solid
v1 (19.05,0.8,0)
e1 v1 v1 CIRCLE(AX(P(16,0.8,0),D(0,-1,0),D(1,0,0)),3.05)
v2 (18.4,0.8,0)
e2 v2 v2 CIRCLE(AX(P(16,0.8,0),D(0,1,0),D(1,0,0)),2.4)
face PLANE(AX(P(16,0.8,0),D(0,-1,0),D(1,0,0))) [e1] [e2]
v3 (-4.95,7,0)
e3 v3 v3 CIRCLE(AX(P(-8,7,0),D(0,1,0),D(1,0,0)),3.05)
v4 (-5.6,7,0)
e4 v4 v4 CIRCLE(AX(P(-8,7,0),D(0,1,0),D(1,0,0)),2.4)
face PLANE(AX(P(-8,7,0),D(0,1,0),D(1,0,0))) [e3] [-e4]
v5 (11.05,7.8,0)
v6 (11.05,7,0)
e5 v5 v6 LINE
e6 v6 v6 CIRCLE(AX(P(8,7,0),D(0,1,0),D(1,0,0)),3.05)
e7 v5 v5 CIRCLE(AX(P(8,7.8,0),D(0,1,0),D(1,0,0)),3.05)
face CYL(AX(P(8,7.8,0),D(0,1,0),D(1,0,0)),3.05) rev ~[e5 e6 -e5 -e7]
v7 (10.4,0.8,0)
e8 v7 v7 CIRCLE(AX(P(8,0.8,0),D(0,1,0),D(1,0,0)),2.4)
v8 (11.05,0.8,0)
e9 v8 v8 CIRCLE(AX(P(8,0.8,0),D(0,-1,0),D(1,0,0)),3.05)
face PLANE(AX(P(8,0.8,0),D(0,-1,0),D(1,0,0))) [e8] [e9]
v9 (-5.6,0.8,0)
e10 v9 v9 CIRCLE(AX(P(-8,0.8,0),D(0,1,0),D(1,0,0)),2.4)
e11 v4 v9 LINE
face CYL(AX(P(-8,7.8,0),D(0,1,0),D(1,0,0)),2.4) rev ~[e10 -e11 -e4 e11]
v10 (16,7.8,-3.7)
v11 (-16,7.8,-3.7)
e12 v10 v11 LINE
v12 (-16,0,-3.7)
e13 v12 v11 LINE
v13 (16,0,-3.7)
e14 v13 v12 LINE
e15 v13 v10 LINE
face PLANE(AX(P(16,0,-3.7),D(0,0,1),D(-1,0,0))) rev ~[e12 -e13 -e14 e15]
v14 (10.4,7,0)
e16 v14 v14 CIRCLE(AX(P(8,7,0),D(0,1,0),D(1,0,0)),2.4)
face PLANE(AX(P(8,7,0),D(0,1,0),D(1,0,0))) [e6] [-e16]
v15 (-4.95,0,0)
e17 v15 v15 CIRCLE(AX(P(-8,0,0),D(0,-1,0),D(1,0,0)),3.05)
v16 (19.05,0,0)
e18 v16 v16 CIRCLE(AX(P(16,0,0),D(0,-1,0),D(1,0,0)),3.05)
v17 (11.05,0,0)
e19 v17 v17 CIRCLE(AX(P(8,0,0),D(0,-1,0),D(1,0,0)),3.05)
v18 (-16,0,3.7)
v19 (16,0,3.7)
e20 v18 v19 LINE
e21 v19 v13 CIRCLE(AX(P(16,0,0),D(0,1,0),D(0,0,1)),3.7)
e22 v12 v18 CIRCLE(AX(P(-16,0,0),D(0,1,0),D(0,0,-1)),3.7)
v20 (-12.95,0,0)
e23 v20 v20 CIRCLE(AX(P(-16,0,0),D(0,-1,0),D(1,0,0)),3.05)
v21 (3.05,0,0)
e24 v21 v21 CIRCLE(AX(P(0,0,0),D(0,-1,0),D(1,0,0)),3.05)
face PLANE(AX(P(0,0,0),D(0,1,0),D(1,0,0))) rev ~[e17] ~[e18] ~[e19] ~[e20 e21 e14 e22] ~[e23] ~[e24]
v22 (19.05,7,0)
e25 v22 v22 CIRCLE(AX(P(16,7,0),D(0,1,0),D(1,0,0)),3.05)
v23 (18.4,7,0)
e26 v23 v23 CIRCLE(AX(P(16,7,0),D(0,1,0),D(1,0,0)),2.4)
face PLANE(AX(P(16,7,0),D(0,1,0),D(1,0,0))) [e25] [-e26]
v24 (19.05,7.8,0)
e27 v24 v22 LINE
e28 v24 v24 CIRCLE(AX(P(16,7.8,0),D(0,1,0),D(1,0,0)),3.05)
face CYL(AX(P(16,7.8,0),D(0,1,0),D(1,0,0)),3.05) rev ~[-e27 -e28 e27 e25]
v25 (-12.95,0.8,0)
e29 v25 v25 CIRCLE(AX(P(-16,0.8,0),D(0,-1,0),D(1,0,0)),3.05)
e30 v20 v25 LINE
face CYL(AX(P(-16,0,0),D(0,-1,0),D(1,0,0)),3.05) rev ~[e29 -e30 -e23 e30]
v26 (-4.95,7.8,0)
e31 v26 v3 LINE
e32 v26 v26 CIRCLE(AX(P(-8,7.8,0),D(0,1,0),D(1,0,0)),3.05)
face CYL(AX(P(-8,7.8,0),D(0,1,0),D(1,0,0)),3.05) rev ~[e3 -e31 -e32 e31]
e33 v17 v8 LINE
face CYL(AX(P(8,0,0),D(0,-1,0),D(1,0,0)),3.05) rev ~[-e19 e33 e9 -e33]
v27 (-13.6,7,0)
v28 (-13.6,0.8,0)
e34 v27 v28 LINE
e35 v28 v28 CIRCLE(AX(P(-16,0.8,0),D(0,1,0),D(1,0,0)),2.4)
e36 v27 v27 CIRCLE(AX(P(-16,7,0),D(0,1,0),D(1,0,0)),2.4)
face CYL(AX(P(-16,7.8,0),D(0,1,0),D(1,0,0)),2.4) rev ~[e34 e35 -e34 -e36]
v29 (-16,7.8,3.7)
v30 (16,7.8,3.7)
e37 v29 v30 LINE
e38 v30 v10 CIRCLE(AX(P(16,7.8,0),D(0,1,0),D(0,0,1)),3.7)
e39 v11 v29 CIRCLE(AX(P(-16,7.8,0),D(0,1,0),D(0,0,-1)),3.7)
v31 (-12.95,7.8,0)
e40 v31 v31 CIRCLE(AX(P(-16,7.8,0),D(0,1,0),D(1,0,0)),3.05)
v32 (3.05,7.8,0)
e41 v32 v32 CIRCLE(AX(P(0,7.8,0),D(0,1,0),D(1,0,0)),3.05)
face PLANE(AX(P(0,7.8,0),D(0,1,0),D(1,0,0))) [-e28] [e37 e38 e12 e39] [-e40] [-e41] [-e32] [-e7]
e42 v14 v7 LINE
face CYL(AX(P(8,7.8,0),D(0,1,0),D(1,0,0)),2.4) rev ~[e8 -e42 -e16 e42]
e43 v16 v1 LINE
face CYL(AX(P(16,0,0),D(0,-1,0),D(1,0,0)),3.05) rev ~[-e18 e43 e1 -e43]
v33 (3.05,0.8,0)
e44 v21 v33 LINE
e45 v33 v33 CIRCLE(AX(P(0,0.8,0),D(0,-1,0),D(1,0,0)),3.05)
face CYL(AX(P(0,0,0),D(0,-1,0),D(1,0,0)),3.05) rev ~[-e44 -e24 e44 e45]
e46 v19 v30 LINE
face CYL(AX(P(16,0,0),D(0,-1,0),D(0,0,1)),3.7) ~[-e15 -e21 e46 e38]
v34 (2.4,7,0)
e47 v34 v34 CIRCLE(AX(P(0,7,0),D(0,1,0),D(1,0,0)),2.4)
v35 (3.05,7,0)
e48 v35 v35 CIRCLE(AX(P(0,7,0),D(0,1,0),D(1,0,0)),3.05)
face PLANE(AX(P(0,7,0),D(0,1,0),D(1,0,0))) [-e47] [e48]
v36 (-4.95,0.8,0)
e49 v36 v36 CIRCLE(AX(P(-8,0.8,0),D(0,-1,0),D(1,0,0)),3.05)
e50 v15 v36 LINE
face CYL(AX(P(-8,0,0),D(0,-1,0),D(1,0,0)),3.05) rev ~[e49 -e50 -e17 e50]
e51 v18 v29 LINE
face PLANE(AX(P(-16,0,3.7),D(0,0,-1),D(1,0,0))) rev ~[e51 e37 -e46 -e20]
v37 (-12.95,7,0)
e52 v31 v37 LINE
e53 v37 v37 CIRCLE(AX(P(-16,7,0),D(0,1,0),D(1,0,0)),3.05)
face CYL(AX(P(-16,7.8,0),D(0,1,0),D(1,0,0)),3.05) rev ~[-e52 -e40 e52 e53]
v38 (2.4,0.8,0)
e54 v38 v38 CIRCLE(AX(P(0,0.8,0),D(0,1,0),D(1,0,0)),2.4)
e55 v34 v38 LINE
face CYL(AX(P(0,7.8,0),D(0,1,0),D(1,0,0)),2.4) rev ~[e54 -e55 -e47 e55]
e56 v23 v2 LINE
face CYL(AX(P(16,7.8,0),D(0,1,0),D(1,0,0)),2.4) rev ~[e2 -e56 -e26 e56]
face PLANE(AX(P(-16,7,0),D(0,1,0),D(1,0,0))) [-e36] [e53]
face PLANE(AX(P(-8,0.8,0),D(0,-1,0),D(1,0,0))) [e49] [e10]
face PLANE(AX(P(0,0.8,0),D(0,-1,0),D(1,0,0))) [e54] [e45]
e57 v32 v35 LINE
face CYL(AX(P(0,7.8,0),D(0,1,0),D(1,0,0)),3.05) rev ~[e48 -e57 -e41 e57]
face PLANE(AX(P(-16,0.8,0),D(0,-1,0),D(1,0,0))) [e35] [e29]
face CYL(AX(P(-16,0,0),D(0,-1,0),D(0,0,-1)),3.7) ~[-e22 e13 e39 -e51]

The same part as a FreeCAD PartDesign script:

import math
import FreeCAD as App
import Part
import Sketcher
from FreeCAD import Vector
Q = App.Units.Quantity

doc = App.newDocument("Part")
body = doc.addObject("PartDesign::Body", "Body")

# Sketch on XZ plane
sketch1 = body.newObject("Sketcher::SketchObject", "Sketch")
sketch1.AttachmentSupport = (doc.getObject("XZ_Plane"), [""])
sketch1.MapMode = "FlatFace"
sketch1.addGeometry(Part.LineSegment(Vector(-16, 3.7, 0), Vector(16, 3.7, 0)), False)
sketch1.addGeometry(Part.ArcOfCircle(Part.Circle(Vector(16, 0, 0), Vector(0, 0, 1), 3.7), math.radians(-90), math.radians(90)), False)
sketch1.addGeometry(Part.LineSegment(Vector(16, -3.7, 0), Vector(-16, -3.7, 0)), False)
sketch1.addGeometry(Part.ArcOfCircle(Part.Circle(Vector(-16, 0, 0), Vector(0, 0, 1), 3.7), math.radians(90), math.radians(270)), False)
sketch1.addConstraint(Sketcher.Constraint("Tangent", 0, 2, 1, 2))
sketch1.addConstraint(Sketcher.Constraint("Tangent", 1, 1, 2, 1))
sketch1.addConstraint(Sketcher.Constraint("Tangent", 2, 2, 3, 2))
sketch1.addConstraint(Sketcher.Constraint("Tangent", 3, 1, 0, 1))
sketch1.addConstraint(Sketcher.Constraint("Horizontal", 0))
sketch1.addConstraint(Sketcher.Constraint("Horizontal", 2))
sketch1.addConstraint(Sketcher.Constraint("Symmetric", 1, 3, 3, 3, -1, 1))
sketch1.addConstraint(Sketcher.Constraint("Radius", 1, Q("3.7 mm")))
sketch1.addConstraint(Sketcher.Constraint("DistanceX", 0, 1, 0, 2, Q("32 mm")))
pad1 = body.newObject("PartDesign::Pad", "Pad")
pad1.Profile = sketch1
pad1.Length = 7.8
pad1.Reversed = True

# Sketch on XZ plane
sketch2 = body.newObject("Sketcher::SketchObject", "Sketch001")
sketch2.AttachmentSupport = (doc.getObject("XZ_Plane"), [""])
sketch2.MapMode = "FlatFace"
sketch2.AttachmentOffset = App.Placement(Vector(0, 0, -7.8), App.Rotation())
sketch2.addGeometry(Part.Circle(Vector(0, 0, 0), Vector(0, 0, 1), 2.4), False)
sketch2.addGeometry(Part.Circle(Vector(8, 0, 0), Vector(0, 0, 1), 2.4), False)
sketch2.addGeometry(Part.Circle(Vector(16, 0, 0), Vector(0, 0, 1), 2.4), False)
sketch2.addGeometry(Part.Circle(Vector(-16, 0, 0), Vector(0, 0, 1), 2.4), False)
sketch2.addGeometry(Part.Circle(Vector(-8, 0, 0), Vector(0, 0, 1), 2.4), False)
sketch2.addConstraint(Sketcher.Constraint("Coincident", 0, 3, -1, 1))
sketch2.addConstraint(Sketcher.Constraint("Equal", 0, 1))
sketch2.addConstraint(Sketcher.Constraint("Equal", 1, 2))
sketch2.addConstraint(Sketcher.Constraint("Equal", 2, 3))
sketch2.addConstraint(Sketcher.Constraint("Equal", 3, 4))
sketch2.addConstraint(Sketcher.Constraint("Symmetric", 2, 3, 3, 3, -1, 1))
sketch2.addConstraint(Sketcher.Constraint("Symmetric", 1, 3, 4, 3, -1, 1))
sketch2.addConstraint(Sketcher.Constraint("PointOnObject", 1, 3, -1))
sketch2.addConstraint(Sketcher.Constraint("PointOnObject", 2, 3, -1))
sketch2.addConstraint(Sketcher.Constraint("Diameter", 0, Q("4.8 mm")))
sketch2.addConstraint(Sketcher.Constraint("DistanceX", -1, 1, 1, 3, Q("8 mm")))
sketch2.addConstraint(Sketcher.Constraint("DistanceX", -1, 1, 2, 3, Q("16 mm")))
pocket1 = body.newObject("PartDesign::Pocket", "Pocket")
pocket1.Profile = sketch2
pocket1.Length = 7.8
pocket1.Reversed = True

# Sketch on XZ plane
sketch3 = body.newObject("Sketcher::SketchObject", "Sketch002")
sketch3.AttachmentSupport = (doc.getObject("XZ_Plane"), [""])
sketch3.MapMode = "FlatFace"
sketch3.AttachmentOffset = App.Placement(Vector(0, 0, -7.8), App.Rotation())
sketch3.addGeometry(Part.Circle(Vector(0, 0, 0), Vector(0, 0, 1), 3), False)
sketch3.addGeometry(Part.Circle(Vector(8, 0, 0), Vector(0, 0, 1), 3), False)
sketch3.addGeometry(Part.Circle(Vector(16, 0, 0), Vector(0, 0, 1), 3), False)
sketch3.addGeometry(Part.Circle(Vector(-16, 0, 0), Vector(0, 0, 1), 3), False)
sketch3.addGeometry(Part.Circle(Vector(-8, 0, 0), Vector(0, 0, 1), 3), False)
sketch3.addConstraint(Sketcher.Constraint("Coincident", 0, 3, -1, 1))
sketch3.addConstraint(Sketcher.Constraint("Equal", 0, 1))
sketch3.addConstraint(Sketcher.Constraint("Equal", 1, 2))
sketch3.addConstraint(Sketcher.Constraint("Equal", 2, 3))
sketch3.addConstraint(Sketcher.Constraint("Equal", 3, 4))
sketch3.addConstraint(Sketcher.Constraint("Symmetric", 2, 3, 3, 3, -1, 1))
sketch3.addConstraint(Sketcher.Constraint("Symmetric", 1, 3, 4, 3, -1, 1))
sketch3.addConstraint(Sketcher.Constraint("PointOnObject", 1, 3, -1))
sketch3.addConstraint(Sketcher.Constraint("PointOnObject", 2, 3, -1))
sketch3.addConstraint(Sketcher.Constraint("Diameter", 0, Q("6.1 mm")))
sketch3.addConstraint(Sketcher.Constraint("DistanceX", -1, 1, 1, 3, Q("8 mm")))
sketch3.addConstraint(Sketcher.Constraint("DistanceX", -1, 1, 2, 3, Q("16 mm")))
pocket2 = body.newObject("PartDesign::Pocket", "Pocket001")
pocket2.Profile = sketch3
pocket2.Length = 0.8
pocket2.Reversed = True

# Sketch on XZ plane
sketch4 = body.newObject("Sketcher::SketchObject", "Sketch003")
sketch4.AttachmentSupport = (doc.getObject("XZ_Plane"), [""])
sketch4.MapMode = "FlatFace"
sketch4.addGeometry(Part.Circle(Vector(0, 0, 0), Vector(0, 0, 1), 3), False)
sketch4.addGeometry(Part.Circle(Vector(8, 0, 0), Vector(0, 0, 1), 3), False)
sketch4.addGeometry(Part.Circle(Vector(16, 0, 0), Vector(0, 0, 1), 3), False)
sketch4.addGeometry(Part.Circle(Vector(-16, 0, 0), Vector(0, 0, 1), 3), False)
sketch4.addGeometry(Part.Circle(Vector(-8, 0, 0), Vector(0, 0, 1), 3), False)
sketch4.addConstraint(Sketcher.Constraint("Coincident", 0, 3, -1, 1))
sketch4.addConstraint(Sketcher.Constraint("Equal", 0, 1))
sketch4.addConstraint(Sketcher.Constraint("Equal", 1, 2))
sketch4.addConstraint(Sketcher.Constraint("Equal", 2, 3))
sketch4.addConstraint(Sketcher.Constraint("Equal", 3, 4))
sketch4.addConstraint(Sketcher.Constraint("Symmetric", 2, 3, 3, 3, -1, 1))
sketch4.addConstraint(Sketcher.Constraint("Symmetric", 1, 3, 4, 3, -1, 1))
sketch4.addConstraint(Sketcher.Constraint("PointOnObject", 1, 3, -1))
sketch4.addConstraint(Sketcher.Constraint("PointOnObject", 2, 3, -1))
sketch4.addConstraint(Sketcher.Constraint("Diameter", 0, Q("6.1 mm")))
sketch4.addConstraint(Sketcher.Constraint("DistanceX", -1, 1, 1, 3, Q("8 mm")))
sketch4.addConstraint(Sketcher.Constraint("DistanceX", -1, 1, 2, 3, Q("16 mm")))
pocket3 = body.newObject("PartDesign::Pocket", "Pocket002")
pocket3.Profile = sketch4
pocket3.Length = 0.8

doc.recompute()
